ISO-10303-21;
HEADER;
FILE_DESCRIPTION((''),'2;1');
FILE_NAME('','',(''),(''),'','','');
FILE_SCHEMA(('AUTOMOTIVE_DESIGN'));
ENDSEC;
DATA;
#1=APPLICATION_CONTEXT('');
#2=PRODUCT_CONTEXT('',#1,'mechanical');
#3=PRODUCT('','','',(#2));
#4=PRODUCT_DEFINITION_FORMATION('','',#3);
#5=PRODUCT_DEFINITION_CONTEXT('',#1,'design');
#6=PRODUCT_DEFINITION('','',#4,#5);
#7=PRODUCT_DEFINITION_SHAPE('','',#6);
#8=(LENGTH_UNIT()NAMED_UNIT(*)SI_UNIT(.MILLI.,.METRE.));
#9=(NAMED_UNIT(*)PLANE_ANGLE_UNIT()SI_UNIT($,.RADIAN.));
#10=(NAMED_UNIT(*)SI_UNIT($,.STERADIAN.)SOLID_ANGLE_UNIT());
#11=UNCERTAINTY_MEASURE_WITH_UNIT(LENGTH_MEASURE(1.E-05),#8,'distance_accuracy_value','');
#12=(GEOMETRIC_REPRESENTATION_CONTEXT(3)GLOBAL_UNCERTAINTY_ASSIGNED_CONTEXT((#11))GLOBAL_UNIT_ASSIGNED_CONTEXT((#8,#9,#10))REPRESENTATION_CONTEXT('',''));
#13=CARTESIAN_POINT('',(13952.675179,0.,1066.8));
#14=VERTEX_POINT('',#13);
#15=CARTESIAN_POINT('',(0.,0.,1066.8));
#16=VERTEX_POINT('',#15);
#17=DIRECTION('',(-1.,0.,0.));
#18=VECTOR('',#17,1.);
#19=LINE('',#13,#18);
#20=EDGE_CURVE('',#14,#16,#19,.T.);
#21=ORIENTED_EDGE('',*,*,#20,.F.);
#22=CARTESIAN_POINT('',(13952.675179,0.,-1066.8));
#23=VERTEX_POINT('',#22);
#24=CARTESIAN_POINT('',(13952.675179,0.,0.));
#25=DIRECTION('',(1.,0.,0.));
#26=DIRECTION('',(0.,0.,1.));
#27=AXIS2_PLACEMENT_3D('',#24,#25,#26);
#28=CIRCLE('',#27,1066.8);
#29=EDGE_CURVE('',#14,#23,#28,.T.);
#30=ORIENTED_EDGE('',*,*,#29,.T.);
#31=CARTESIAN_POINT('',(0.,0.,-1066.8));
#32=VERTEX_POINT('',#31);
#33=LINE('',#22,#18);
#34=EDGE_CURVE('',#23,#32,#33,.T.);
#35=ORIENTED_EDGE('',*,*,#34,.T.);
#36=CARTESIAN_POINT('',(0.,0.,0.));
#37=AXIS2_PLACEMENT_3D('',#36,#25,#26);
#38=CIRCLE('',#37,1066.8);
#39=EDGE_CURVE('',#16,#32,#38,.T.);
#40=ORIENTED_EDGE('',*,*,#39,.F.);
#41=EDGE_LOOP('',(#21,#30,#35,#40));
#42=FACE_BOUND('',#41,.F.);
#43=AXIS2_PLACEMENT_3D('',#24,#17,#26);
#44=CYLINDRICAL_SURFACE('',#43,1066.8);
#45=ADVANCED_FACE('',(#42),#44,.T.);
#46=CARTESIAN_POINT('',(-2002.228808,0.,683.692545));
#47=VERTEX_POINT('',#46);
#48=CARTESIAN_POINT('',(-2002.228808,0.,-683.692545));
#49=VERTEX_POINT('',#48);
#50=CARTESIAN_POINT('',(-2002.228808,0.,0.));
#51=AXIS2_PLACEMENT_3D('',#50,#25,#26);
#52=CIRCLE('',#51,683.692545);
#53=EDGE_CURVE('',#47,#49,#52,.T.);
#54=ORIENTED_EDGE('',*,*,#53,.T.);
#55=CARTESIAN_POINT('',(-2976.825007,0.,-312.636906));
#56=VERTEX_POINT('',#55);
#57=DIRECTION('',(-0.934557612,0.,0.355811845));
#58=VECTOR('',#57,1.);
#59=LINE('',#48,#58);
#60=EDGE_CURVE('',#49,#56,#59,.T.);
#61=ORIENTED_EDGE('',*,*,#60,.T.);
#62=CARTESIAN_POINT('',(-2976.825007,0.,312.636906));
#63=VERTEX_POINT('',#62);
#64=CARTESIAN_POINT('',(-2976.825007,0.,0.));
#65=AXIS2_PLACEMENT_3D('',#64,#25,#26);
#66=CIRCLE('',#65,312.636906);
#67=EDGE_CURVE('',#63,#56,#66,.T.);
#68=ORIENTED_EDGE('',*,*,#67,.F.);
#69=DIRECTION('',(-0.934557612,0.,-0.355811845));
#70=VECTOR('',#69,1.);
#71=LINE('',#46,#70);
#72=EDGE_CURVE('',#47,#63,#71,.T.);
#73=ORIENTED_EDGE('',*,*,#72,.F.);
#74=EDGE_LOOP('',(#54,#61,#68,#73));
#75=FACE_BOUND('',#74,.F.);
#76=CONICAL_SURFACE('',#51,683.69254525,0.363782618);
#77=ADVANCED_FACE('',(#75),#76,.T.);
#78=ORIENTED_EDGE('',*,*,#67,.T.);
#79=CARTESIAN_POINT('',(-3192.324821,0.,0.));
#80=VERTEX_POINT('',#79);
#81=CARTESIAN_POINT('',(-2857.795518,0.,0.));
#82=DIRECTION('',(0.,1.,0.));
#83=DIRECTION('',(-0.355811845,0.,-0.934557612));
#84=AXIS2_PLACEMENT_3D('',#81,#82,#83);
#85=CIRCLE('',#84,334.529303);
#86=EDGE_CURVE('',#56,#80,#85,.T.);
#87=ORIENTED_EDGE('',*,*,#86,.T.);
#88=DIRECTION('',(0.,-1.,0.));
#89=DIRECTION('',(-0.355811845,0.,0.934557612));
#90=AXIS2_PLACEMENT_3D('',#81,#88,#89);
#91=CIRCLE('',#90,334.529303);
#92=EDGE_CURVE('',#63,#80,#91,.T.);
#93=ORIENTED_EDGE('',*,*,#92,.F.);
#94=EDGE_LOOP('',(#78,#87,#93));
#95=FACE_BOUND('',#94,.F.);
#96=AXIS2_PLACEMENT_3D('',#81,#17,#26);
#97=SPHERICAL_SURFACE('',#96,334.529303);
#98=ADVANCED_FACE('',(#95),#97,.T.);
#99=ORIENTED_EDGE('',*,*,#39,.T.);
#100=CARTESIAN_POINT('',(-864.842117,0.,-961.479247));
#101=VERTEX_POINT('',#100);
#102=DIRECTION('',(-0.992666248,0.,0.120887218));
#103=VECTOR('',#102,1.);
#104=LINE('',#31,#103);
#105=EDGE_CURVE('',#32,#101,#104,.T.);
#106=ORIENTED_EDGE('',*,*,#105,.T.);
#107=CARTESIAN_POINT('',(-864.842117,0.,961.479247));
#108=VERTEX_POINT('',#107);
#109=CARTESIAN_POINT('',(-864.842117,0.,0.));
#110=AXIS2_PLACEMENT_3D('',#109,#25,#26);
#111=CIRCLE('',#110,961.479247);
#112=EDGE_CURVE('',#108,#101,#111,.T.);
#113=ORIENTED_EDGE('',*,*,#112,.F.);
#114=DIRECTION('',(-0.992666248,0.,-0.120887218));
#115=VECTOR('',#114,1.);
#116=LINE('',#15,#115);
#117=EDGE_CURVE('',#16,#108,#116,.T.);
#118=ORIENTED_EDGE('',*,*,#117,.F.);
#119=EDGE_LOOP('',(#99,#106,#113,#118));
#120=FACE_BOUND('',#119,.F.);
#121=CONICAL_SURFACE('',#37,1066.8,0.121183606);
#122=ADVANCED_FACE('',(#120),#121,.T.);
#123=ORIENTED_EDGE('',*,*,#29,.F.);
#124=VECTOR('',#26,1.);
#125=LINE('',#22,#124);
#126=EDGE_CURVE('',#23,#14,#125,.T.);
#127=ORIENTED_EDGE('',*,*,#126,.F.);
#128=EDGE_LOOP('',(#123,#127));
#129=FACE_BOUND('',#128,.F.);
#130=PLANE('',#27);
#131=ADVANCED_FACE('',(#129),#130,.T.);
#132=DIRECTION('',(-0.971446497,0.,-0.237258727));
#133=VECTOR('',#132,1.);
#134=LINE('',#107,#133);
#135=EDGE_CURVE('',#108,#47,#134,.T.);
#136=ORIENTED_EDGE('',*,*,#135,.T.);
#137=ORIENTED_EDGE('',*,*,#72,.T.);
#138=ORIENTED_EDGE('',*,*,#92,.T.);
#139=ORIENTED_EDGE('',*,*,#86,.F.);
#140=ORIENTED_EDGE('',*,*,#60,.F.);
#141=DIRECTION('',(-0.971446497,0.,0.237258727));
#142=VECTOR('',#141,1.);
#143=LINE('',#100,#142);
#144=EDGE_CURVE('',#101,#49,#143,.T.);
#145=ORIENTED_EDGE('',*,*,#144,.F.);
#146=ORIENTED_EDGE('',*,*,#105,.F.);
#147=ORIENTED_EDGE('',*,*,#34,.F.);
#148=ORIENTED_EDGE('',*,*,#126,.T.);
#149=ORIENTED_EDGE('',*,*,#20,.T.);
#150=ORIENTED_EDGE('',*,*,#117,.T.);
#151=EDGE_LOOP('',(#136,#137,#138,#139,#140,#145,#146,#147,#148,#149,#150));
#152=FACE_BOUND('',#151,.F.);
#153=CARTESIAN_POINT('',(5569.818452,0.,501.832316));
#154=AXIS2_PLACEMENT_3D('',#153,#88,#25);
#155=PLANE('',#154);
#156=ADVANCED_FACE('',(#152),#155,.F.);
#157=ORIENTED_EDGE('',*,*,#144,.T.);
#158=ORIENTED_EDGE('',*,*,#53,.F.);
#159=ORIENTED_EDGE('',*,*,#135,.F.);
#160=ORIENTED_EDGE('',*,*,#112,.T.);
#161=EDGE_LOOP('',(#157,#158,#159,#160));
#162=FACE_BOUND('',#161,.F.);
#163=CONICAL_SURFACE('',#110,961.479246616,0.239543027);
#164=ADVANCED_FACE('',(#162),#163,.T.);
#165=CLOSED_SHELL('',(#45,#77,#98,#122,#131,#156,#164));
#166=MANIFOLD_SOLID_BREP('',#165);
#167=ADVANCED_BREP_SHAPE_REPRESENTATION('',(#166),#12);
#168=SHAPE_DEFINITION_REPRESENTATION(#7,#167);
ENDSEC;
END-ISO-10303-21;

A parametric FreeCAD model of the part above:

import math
import FreeCAD as App
import Part
import Sketcher

V = App.Vector
Q = App.Units.Quantity

doc = App.newDocument("Part")
body = doc.addObject("PartDesign::Body", "Body")

# Sketch on XZ plane
sketch1 = body.newObject("Sketcher::SketchObject", "Sketch")
sketch1.AttachmentSupport = (doc.getObject("XZ_Plane"), [""])
sketch1.MapMode = "FlatFace"
sketch1.addGeometry([
    Part.LineSegment(V(13953, 1067, 0), V(0, 1067, 0)),  # 0
    Part.LineSegment(V(0, 1067, 0), V(-865, 961, 0)),  # 1
    Part.LineSegment(V(-865, 961, 0), V(-2002, 684, 0)),  # 2
    Part.LineSegment(V(-2002, 684, 0), V(-2977, 313, 0)),  # 3
    Part.ArcOfCircle(Part.Circle(V(-2858, 0, 0), V(0, 0, 1), 335), math.radians(111), math.radians(180)),  # 4
    Part.LineSegment(V(-3192, 0, 0), V(13953, 0, 0)),  # 5
    Part.LineSegment(V(13953, 0, 0), V(13953, 1067, 0)),  # 6
], False)
sketch1.addConstraint([
    Sketcher.Constraint("Coincident", 0, 2, 1, 1),
    Sketcher.Constraint("Coincident", 1, 2, 2, 1),
    Sketcher.Constraint("Coincident", 2, 2, 3, 1),
    Sketcher.Constraint("Tangent", 3, 2, 4, 1),
    Sketcher.Constraint("Coincident", 4, 2, 5, 1),
    Sketcher.Constraint("Coincident", 5, 2, 6, 1),
    Sketcher.Constraint("Coincident", 6, 2, 0, 1),
    Sketcher.Constraint("Horizontal", 0),
    Sketcher.Constraint("Horizontal", 5),
    Sketcher.Constraint("Vertical", 6),
    Sketcher.Constraint("PointOnObject", 4, 3, -1),
    Sketcher.Constraint("PointOnObject", 0, 2, -2),
    Sketcher.Constraint("PointOnObject", 5, 2, -1),
    Sketcher.Constraint("DistanceX", 5, 1, 5, 2, Q("675 in")),
    Sketcher.Constraint("DistanceY", 6, 1, 6, 2, Q("42 in")),
    Sketcher.Constraint("Radius", 4, Q("334.529303 mm")),
    Sketcher.Constraint("DistanceX", 0, 2, 0, 1, Q("13952.675179 mm")),
    Sketcher.Constraint("DistanceX", 4, 3, 1, 2, Q("1992.953402 mm")),
    Sketcher.Constraint("DistanceY", 2, 2, 1, 2, Q("277.786701 mm")),
    Sketcher.Constraint("DistanceX", 3, 2, 2, 2, Q("974.596199 mm")),
    Sketcher.Constraint("Distance", 3, Q("1042.842289 mm")),
])
revolution = body.newObject("PartDesign::Revolution", "Revolution")
revolution.Profile = sketch1
revolution.ReferenceAxis = (sketch1, ["H_Axis"])
revolution.Angle = 180

doc.recompute()
